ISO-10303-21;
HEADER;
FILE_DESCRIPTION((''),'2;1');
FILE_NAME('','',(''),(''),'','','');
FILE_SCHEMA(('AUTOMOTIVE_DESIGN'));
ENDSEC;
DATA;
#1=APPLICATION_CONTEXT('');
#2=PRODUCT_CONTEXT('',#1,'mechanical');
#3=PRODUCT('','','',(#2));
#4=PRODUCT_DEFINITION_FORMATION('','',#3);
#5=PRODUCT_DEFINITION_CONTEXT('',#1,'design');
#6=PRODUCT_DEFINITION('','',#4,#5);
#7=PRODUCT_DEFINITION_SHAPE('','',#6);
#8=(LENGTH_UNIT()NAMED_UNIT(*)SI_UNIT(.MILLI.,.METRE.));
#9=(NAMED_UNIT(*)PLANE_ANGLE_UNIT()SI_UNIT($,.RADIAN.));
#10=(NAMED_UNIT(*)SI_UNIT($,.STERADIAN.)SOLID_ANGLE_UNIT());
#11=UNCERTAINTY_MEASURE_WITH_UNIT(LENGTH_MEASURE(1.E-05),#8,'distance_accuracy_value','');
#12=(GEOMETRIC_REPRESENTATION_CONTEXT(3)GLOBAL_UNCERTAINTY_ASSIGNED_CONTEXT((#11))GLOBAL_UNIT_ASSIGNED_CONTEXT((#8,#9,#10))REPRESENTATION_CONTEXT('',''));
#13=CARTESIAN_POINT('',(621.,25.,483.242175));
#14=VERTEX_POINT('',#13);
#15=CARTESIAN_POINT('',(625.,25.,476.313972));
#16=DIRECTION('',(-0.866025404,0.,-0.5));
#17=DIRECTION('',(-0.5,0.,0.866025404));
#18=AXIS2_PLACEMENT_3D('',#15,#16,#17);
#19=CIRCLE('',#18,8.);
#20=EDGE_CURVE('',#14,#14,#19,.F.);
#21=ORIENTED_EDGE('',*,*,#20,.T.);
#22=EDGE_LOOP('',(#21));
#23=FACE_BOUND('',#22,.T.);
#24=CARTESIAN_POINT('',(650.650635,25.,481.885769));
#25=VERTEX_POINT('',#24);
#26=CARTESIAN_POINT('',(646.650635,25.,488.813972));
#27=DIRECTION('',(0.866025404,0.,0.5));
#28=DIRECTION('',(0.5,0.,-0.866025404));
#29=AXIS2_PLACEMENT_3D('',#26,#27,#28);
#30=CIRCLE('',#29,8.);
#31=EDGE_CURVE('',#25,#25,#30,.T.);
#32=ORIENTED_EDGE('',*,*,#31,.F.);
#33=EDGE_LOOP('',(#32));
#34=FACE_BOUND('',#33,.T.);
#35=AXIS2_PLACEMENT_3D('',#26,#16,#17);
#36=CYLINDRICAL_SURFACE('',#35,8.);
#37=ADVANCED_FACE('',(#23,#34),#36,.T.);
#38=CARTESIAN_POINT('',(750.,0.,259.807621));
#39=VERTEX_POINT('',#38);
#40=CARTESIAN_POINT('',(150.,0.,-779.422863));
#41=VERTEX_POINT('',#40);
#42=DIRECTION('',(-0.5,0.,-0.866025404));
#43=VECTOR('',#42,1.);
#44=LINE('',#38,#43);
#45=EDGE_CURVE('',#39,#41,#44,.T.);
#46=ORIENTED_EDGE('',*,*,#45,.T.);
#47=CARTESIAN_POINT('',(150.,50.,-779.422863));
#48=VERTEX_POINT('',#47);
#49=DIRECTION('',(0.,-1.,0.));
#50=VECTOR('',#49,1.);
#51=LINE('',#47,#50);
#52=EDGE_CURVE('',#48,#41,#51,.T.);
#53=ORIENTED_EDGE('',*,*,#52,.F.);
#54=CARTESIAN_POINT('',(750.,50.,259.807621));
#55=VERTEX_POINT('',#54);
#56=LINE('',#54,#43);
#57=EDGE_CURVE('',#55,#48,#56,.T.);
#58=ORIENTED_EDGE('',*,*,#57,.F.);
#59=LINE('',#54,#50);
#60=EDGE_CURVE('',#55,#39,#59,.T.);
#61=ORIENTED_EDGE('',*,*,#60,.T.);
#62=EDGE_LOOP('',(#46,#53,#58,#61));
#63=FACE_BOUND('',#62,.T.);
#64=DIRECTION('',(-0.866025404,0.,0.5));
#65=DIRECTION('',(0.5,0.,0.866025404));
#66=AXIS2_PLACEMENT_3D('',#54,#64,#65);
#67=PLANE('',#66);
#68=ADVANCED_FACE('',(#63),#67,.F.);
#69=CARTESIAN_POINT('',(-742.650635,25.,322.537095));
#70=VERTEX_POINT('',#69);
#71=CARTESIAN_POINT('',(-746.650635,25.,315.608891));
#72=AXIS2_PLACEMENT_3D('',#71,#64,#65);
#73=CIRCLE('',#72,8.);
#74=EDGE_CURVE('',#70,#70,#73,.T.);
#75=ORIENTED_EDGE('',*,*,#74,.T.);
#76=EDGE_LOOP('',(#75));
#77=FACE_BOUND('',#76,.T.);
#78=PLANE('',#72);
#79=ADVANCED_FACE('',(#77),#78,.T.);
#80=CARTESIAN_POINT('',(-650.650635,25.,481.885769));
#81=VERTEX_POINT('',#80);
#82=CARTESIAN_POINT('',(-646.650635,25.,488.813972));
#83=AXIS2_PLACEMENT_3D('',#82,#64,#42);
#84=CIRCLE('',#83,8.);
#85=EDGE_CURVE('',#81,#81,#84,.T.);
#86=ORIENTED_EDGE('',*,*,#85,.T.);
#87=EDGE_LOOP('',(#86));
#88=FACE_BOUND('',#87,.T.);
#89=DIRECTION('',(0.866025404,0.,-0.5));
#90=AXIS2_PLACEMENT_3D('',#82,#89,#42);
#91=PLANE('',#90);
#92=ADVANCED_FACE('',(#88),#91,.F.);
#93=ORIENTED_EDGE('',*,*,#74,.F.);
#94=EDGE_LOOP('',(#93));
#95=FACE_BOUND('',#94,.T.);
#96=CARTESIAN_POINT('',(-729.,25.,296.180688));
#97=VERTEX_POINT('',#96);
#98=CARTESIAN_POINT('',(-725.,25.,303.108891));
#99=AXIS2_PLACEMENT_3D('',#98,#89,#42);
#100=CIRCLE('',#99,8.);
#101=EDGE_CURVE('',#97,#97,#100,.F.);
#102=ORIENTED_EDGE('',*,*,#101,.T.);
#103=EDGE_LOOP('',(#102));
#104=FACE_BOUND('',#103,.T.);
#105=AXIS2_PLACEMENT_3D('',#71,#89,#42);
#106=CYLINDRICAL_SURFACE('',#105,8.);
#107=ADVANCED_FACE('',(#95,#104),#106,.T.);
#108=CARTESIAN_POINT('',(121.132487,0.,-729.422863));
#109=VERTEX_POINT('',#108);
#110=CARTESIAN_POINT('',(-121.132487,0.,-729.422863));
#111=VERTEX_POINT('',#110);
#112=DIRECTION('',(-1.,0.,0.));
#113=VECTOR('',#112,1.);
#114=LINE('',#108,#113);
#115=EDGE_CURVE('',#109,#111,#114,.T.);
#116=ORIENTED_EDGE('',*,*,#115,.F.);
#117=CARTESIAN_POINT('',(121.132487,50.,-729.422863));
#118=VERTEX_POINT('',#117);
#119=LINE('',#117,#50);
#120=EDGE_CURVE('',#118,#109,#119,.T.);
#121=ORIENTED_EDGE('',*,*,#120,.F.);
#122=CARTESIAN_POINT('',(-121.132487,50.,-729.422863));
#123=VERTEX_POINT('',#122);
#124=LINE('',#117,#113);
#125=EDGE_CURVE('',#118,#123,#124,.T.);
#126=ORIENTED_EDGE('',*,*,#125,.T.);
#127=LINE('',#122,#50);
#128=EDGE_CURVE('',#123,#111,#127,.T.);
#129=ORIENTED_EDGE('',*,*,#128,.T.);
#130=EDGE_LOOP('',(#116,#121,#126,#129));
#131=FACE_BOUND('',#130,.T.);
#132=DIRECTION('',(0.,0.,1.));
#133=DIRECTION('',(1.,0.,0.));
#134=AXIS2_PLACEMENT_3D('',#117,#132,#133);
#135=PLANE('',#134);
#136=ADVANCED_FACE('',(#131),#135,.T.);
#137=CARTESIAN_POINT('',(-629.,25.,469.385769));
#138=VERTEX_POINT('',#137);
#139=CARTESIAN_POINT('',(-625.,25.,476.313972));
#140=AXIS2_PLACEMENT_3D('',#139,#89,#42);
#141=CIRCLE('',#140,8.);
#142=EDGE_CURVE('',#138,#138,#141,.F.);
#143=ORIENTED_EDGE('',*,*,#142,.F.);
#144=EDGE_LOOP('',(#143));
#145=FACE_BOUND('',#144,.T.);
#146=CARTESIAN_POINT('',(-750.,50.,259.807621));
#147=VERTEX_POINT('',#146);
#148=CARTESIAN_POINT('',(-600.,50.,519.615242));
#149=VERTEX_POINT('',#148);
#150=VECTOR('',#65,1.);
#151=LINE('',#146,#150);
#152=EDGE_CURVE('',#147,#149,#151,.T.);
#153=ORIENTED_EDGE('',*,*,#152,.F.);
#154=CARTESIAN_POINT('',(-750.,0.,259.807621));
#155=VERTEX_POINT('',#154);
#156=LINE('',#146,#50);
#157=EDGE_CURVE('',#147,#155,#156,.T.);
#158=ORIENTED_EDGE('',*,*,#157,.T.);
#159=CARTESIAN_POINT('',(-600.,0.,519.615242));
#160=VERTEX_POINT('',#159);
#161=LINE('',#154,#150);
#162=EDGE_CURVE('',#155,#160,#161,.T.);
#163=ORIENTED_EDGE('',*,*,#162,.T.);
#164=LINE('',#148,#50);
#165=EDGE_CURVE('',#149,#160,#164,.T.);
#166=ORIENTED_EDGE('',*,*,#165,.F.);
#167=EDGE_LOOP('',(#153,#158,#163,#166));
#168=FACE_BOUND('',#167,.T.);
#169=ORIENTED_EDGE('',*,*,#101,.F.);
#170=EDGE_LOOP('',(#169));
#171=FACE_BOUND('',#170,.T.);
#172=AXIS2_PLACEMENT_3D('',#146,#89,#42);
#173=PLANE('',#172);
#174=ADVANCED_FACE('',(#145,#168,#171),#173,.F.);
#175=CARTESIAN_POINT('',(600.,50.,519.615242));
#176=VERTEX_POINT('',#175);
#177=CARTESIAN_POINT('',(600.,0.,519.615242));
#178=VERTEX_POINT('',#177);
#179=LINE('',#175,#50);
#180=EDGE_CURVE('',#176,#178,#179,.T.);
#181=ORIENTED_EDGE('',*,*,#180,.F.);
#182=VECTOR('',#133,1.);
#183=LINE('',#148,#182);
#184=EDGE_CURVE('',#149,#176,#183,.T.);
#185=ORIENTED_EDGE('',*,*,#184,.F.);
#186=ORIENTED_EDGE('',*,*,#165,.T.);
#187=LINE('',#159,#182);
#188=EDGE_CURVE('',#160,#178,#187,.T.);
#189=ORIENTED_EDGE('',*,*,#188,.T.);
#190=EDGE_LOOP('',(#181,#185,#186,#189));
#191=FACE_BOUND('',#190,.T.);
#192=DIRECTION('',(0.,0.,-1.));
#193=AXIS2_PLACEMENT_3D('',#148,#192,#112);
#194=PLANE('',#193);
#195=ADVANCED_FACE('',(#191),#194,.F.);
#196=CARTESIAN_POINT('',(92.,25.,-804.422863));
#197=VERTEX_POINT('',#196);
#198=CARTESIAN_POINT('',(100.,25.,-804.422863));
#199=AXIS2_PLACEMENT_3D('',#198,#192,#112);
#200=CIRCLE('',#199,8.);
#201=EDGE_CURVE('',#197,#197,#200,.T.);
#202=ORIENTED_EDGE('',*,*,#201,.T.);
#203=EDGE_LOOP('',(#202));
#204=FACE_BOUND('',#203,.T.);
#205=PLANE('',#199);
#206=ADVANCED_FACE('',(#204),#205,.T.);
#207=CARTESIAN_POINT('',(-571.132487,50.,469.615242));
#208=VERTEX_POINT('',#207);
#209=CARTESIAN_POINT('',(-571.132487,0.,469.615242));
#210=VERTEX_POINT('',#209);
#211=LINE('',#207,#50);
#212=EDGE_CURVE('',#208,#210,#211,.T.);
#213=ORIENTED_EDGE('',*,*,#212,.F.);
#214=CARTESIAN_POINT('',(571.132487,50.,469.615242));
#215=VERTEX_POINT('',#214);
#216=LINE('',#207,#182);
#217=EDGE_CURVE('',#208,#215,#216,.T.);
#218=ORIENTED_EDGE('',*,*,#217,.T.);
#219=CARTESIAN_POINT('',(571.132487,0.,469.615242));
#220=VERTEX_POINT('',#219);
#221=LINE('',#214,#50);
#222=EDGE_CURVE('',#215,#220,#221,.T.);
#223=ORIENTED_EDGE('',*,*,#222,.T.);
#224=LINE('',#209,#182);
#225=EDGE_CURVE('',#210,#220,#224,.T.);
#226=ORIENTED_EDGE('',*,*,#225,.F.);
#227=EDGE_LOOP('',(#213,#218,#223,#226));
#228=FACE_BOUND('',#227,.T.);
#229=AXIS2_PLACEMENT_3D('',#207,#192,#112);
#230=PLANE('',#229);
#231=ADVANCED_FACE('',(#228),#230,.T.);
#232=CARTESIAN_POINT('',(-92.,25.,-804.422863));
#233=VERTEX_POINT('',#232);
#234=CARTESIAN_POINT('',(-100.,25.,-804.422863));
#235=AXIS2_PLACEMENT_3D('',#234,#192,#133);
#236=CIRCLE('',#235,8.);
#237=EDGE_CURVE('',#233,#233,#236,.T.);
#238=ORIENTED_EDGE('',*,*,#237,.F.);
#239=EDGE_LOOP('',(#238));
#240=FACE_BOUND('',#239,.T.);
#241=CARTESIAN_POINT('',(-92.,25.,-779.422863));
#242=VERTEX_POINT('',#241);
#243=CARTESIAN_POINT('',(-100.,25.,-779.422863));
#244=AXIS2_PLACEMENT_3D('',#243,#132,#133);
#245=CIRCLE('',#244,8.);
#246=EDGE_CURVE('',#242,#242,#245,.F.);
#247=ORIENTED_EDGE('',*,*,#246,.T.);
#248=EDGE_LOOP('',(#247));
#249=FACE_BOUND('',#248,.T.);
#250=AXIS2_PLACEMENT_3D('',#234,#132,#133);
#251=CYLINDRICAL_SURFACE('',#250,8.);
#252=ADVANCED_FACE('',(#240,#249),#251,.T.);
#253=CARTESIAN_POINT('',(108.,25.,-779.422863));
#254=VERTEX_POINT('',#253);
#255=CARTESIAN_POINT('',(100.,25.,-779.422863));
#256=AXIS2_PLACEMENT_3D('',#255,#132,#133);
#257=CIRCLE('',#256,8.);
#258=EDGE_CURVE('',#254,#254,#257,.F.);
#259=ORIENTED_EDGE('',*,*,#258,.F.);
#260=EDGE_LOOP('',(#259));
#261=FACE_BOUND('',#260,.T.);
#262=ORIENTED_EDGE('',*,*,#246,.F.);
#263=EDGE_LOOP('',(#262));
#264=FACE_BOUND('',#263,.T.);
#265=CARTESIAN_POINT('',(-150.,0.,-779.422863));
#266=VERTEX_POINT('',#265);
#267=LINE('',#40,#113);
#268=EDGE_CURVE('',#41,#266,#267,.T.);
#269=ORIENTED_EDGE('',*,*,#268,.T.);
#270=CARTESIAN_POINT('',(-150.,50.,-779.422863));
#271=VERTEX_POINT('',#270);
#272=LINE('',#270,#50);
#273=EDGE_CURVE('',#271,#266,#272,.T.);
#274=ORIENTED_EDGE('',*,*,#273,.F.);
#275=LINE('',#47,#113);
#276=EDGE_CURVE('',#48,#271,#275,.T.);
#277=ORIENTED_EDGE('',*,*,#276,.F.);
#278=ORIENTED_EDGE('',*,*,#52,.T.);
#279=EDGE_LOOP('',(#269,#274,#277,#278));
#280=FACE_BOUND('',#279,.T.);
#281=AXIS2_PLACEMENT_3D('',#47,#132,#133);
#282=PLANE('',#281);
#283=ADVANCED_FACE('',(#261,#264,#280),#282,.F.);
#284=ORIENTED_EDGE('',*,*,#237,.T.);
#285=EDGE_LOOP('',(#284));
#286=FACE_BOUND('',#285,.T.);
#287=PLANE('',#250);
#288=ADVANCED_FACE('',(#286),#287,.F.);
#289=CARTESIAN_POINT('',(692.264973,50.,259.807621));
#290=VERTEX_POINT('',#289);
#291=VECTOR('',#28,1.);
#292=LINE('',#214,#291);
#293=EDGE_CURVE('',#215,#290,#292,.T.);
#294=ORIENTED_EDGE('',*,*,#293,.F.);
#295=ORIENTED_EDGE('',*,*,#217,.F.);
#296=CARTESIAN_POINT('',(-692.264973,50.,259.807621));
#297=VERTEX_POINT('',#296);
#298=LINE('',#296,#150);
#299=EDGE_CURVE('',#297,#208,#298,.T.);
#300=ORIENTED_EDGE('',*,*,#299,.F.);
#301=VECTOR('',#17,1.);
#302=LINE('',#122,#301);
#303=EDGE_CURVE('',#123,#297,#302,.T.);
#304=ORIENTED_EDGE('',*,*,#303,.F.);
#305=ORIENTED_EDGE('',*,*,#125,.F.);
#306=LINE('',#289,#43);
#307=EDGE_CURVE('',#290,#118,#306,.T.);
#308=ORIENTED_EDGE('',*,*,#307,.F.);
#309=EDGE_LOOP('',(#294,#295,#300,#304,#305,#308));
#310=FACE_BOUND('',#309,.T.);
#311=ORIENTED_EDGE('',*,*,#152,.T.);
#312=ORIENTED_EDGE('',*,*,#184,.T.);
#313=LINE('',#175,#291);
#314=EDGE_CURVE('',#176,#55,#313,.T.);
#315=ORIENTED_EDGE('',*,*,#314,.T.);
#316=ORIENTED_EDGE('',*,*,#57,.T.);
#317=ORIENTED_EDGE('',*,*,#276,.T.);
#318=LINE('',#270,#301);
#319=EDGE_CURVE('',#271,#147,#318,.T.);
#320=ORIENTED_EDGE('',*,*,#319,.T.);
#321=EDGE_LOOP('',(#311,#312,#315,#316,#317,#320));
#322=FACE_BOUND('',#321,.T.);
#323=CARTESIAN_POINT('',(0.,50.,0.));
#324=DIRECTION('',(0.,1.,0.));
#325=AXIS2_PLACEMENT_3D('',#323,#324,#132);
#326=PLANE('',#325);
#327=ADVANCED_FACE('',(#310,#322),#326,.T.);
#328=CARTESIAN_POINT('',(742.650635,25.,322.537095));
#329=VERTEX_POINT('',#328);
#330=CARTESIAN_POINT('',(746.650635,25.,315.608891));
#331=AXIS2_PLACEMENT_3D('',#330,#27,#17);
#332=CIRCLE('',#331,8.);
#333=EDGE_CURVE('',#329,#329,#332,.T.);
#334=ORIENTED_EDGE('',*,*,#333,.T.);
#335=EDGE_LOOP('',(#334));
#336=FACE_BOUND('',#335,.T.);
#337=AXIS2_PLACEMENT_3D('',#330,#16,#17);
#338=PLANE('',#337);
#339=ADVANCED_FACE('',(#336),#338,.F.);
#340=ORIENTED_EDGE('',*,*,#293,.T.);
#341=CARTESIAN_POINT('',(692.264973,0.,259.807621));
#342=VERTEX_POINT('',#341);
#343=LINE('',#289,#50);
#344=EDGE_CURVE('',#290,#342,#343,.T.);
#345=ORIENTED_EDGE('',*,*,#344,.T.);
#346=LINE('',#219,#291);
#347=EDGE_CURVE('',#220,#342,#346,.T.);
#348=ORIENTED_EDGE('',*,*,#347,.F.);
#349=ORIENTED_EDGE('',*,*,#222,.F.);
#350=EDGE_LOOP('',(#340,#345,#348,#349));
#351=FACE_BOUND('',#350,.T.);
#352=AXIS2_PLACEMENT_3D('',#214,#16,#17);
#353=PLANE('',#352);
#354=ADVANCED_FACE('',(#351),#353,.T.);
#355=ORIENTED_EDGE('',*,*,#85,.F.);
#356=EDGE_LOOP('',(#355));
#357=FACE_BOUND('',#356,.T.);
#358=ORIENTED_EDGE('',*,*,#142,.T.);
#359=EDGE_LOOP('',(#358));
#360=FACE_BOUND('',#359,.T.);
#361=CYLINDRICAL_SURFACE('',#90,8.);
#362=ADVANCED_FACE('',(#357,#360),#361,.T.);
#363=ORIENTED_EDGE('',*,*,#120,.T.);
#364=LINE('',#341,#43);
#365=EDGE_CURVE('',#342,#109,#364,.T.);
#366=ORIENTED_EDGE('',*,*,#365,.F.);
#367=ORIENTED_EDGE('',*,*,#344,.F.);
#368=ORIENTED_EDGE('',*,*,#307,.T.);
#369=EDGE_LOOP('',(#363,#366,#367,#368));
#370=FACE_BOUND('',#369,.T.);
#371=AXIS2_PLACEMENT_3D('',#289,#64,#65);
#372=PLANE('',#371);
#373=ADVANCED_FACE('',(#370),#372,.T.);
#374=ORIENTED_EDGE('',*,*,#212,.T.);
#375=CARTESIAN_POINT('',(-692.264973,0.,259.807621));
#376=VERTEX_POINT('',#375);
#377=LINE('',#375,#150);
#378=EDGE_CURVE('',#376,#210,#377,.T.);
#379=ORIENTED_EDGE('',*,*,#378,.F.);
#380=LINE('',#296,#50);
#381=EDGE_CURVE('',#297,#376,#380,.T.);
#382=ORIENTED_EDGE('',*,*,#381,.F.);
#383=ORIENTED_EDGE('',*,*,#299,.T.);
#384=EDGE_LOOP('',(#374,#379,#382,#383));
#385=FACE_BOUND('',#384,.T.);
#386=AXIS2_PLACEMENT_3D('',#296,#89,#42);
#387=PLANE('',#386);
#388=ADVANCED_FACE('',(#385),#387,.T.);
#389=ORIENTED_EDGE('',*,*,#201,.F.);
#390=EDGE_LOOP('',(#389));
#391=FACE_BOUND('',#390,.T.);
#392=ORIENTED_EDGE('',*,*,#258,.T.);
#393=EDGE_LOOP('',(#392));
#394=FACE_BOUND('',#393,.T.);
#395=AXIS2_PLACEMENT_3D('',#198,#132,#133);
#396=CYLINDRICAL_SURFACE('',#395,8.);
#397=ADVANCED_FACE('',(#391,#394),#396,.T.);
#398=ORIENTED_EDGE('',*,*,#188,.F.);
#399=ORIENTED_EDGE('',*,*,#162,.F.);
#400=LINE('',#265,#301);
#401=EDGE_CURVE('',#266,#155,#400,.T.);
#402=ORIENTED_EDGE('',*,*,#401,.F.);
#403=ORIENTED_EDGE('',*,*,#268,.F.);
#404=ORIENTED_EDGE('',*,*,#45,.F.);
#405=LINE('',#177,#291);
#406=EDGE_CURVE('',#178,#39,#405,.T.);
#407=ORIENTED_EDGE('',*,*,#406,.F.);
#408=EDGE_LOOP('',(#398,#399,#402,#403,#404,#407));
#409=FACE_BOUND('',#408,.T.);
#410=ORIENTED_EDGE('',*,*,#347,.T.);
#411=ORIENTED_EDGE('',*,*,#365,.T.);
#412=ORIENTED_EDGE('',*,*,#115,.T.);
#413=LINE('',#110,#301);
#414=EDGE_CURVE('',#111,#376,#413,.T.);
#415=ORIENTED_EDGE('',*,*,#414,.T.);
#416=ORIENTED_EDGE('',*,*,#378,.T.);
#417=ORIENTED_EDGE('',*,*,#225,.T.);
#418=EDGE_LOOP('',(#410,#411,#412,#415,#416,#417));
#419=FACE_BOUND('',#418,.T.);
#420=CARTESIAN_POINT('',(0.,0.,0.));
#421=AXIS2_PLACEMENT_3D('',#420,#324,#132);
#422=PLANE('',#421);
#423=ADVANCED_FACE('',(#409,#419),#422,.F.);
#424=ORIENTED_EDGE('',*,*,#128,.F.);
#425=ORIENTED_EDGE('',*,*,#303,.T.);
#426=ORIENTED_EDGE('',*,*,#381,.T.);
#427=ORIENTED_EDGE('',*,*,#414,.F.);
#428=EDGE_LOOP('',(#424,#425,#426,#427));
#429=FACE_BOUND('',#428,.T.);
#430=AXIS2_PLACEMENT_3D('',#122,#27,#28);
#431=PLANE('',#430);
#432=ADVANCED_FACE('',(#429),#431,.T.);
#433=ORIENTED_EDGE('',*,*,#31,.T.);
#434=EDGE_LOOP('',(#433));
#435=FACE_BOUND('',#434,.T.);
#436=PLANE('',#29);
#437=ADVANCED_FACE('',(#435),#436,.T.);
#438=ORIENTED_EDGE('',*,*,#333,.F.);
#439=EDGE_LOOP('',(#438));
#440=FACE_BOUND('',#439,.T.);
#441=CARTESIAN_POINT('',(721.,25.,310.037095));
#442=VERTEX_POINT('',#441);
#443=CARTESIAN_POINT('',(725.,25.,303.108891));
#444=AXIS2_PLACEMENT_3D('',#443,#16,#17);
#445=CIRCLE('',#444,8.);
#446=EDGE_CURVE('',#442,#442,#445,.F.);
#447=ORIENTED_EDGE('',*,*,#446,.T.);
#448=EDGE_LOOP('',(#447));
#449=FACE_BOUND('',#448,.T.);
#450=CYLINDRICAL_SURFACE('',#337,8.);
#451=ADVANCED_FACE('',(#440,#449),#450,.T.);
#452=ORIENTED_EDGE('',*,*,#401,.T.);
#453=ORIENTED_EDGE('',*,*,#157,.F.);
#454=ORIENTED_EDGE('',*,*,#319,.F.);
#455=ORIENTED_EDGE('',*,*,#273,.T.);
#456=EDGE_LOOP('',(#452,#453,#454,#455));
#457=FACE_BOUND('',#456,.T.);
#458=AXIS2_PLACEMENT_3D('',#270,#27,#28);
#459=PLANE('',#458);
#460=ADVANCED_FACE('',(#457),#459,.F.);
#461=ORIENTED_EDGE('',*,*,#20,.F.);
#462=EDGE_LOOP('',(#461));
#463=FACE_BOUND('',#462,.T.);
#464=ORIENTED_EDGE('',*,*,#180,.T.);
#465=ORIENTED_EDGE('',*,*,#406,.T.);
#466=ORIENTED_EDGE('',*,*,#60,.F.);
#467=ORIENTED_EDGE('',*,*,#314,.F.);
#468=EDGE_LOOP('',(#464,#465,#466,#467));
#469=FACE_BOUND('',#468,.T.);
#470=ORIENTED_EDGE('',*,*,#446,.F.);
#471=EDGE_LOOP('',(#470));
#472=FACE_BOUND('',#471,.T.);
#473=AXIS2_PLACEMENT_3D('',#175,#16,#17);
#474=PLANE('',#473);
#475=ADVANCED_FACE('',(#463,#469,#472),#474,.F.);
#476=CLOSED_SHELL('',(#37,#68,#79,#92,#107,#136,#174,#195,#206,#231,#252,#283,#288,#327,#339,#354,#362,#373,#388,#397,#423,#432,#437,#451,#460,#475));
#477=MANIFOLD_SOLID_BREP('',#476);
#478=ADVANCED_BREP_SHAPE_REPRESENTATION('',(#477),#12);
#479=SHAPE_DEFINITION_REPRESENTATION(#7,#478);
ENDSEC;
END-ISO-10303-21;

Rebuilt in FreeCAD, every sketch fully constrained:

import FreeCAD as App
import Part
import Sketcher
Q = App.Units.Quantity

doc = App.newDocument("Part")
params = doc.addObject("Spreadsheet::Sheet", "Params")
for row, (alias, value) in enumerate([
    ("sketch1_width", "1200 mm"),
    ("sketch1_width2", "300 mm"),
    ("sketch1_length", "300 mm"),
    ("pad1_length", "50 mm"),
    ("sketch2_diameter", "16 mm"),
    ("pad2_length", "25 mm"),
], start=1):
    params.set(f"A{row}", alias)
    params.set(f"B{row}", "=" + value)
    params.setAlias(f"B{row}", alias)

body = doc.addObject("PartDesign::Body", "Body")

sketch1 = body.newObject("Sketcher::SketchObject", "Sketch")
sketch1.AttachmentSupport = (doc.getObject("XZ_Plane"), [""])
sketch1.MapMode = "FlatFace"
sketch1.addGeometry([
    Part.LineSegment(App.Vector(-600, 520, 0), App.Vector(600, 520, 0)),
    Part.LineSegment(App.Vector(600, 520, 0), App.Vector(750, 260, 0)),
    Part.LineSegment(App.Vector(750, 260, 0), App.Vector(150, -779, 0)),
    Part.LineSegment(App.Vector(150, -779, 0), App.Vector(-150, -779, 0)),
    Part.LineSegment(App.Vector(-150, -779, 0), App.Vector(-750, 260, 0)),
    Part.LineSegment(App.Vector(-750, 260, 0), App.Vector(-600, 520, 0)),
    Part.LineSegment(App.Vector(-692, 260, 0), App.Vector(-121, -729, 0)),
    Part.LineSegment(App.Vector(-121, -729, 0), App.Vector(121, -729, 0)),
    Part.LineSegment(App.Vector(121, -729, 0), App.Vector(692, 260, 0)),
    Part.LineSegment(App.Vector(692, 260, 0), App.Vector(571, 470, 0)),
    Part.LineSegment(App.Vector(571, 470, 0), App.Vector(-571, 470, 0)),
    Part.LineSegment(App.Vector(-571, 470, 0), App.Vector(-692, 260, 0)),
], False)
sketch1.addConstraint([
    Sketcher.Constraint("Coincident", 0, 2, 1, 1),
    Sketcher.Constraint("Coincident", 1, 2, 2, 1),
    Sketcher.Constraint("Coincident", 2, 2, 3, 1),
    Sketcher.Constraint("Coincident", 3, 2, 4, 1),
    Sketcher.Constraint("Coincident", 4, 2, 5, 1),
    Sketcher.Constraint("Coincident", 5, 2, 0, 1),
    Sketcher.Constraint("Coincident", 6, 2, 7, 1),
    Sketcher.Constraint("Coincident", 7, 2, 8, 1),
    Sketcher.Constraint("Coincident", 8, 2, 9, 1),
    Sketcher.Constraint("Coincident", 9, 2, 10, 1),
    Sketcher.Constraint("Coincident", 10, 2, 11, 1),
    Sketcher.Constraint("Coincident", 11, 2, 6, 1),
    Sketcher.Constraint("Horizontal", 0),
    Sketcher.Constraint("Horizontal", 3),
    Sketcher.Constraint("Horizontal", 7),
    Sketcher.Constraint("Horizontal", 10),
    Sketcher.Constraint("Symmetric", 1, 2, 4, 2, -2),
    Sketcher.Constraint("Symmetric", 8, 2, 11, 2, -2),
    Sketcher.Constraint("Parallel", 1, 4),
    Sketcher.Constraint("Parallel", 2, 5),
    Sketcher.Constraint("Parallel", 4, 6),
    Sketcher.Constraint("Parallel", 5, 8),
    Sketcher.Constraint("Parallel", 6, 9),
    Sketcher.Constraint("Parallel", 8, 11),
    Sketcher.Constraint("Horizontal", 4, 2, 8, 2),
    Sketcher.Constraint("Equal", 2, 4),
    Sketcher.Constraint("DistanceX", 0, 1, 0, 2, 1200.0),
    Sketcher.Constraint("DistanceX", 3, 2, 3, 1, 300.0),
    Sketcher.Constraint("Angle", 1, Q("-60 deg")),
    Sketcher.Constraint("Distance", 1, 300.0),
    Sketcher.Constraint("DistanceY", 3, 2, 6, 2, 50.0),
    Sketcher.Constraint("DistanceY", 9, 2, 0, 2, 50.0),
    Sketcher.Constraint("DistanceX", 7, 1, 7, 2, 242.264973),
    Sketcher.Constraint("DistanceY", -1, 1, 1, 2, 259.807621),
])
sketch1.setExpression("Constraints[26]", "Params.sketch1_width")
sketch1.setExpression("Constraints[27]", "Params.sketch1_width2")
sketch1.setExpression("Constraints[29]", "Params.sketch1_length")
pad1 = body.newObject("PartDesign::Pad", "Pad")
pad1.Profile = sketch1
pad1.setExpression("Length", "Params.pad1_length")
pad1.Reversed = True

sketch2 = body.newObject("Sketcher::SketchObject", "Sketch001")
sketch2.Placement = App.Placement(App.Vector(675, 0, 389.711432), App.Rotation(App.Vector(0.5, 0, -0.866025404), App.Vector(0, 1, 0), App.Vector(0.866025404, 0, 0.5), "ZXY"))
sketch2.addGeometry([
    Part.Circle(App.Vector(-100, 25, 0), App.Vector(0, 0, 1), 8),
    Part.Circle(App.Vector(100, 25, 0), App.Vector(0, 0, 1), 8),
], False)
sketch2.addConstraint([
    Sketcher.Constraint("Equal", 0, 1),
    Sketcher.Constraint("Symmetric", 0, 3, 1, 3, -2),
    Sketcher.Constraint("Diameter", 0, 16.0),
    Sketcher.Constraint("DistanceX", 0, 3, -1, 1, 100.0),
    Sketcher.Constraint("DistanceY", -1, 1, 0, 3, 25.0),
])
sketch2.setExpression("Constraints[2]", "Params.sketch2_diameter")
pad2 = body.newObject("PartDesign::Pad", "Pad001")
pad2.Profile = sketch2
pad2.setExpression("Length", "Params.pad2_length")
doc.recompute()

polarpattern = body.newObject("PartDesign::PolarPattern", "PolarPattern")
polarpattern.Originals = [pad2]
polarpattern.Axis = (doc.getObject("Y_Axis"), [""])
polarpattern.Angle = 360
polarpattern.Occurrences = 3
body.Tip = polarpattern

doc.recompute()
